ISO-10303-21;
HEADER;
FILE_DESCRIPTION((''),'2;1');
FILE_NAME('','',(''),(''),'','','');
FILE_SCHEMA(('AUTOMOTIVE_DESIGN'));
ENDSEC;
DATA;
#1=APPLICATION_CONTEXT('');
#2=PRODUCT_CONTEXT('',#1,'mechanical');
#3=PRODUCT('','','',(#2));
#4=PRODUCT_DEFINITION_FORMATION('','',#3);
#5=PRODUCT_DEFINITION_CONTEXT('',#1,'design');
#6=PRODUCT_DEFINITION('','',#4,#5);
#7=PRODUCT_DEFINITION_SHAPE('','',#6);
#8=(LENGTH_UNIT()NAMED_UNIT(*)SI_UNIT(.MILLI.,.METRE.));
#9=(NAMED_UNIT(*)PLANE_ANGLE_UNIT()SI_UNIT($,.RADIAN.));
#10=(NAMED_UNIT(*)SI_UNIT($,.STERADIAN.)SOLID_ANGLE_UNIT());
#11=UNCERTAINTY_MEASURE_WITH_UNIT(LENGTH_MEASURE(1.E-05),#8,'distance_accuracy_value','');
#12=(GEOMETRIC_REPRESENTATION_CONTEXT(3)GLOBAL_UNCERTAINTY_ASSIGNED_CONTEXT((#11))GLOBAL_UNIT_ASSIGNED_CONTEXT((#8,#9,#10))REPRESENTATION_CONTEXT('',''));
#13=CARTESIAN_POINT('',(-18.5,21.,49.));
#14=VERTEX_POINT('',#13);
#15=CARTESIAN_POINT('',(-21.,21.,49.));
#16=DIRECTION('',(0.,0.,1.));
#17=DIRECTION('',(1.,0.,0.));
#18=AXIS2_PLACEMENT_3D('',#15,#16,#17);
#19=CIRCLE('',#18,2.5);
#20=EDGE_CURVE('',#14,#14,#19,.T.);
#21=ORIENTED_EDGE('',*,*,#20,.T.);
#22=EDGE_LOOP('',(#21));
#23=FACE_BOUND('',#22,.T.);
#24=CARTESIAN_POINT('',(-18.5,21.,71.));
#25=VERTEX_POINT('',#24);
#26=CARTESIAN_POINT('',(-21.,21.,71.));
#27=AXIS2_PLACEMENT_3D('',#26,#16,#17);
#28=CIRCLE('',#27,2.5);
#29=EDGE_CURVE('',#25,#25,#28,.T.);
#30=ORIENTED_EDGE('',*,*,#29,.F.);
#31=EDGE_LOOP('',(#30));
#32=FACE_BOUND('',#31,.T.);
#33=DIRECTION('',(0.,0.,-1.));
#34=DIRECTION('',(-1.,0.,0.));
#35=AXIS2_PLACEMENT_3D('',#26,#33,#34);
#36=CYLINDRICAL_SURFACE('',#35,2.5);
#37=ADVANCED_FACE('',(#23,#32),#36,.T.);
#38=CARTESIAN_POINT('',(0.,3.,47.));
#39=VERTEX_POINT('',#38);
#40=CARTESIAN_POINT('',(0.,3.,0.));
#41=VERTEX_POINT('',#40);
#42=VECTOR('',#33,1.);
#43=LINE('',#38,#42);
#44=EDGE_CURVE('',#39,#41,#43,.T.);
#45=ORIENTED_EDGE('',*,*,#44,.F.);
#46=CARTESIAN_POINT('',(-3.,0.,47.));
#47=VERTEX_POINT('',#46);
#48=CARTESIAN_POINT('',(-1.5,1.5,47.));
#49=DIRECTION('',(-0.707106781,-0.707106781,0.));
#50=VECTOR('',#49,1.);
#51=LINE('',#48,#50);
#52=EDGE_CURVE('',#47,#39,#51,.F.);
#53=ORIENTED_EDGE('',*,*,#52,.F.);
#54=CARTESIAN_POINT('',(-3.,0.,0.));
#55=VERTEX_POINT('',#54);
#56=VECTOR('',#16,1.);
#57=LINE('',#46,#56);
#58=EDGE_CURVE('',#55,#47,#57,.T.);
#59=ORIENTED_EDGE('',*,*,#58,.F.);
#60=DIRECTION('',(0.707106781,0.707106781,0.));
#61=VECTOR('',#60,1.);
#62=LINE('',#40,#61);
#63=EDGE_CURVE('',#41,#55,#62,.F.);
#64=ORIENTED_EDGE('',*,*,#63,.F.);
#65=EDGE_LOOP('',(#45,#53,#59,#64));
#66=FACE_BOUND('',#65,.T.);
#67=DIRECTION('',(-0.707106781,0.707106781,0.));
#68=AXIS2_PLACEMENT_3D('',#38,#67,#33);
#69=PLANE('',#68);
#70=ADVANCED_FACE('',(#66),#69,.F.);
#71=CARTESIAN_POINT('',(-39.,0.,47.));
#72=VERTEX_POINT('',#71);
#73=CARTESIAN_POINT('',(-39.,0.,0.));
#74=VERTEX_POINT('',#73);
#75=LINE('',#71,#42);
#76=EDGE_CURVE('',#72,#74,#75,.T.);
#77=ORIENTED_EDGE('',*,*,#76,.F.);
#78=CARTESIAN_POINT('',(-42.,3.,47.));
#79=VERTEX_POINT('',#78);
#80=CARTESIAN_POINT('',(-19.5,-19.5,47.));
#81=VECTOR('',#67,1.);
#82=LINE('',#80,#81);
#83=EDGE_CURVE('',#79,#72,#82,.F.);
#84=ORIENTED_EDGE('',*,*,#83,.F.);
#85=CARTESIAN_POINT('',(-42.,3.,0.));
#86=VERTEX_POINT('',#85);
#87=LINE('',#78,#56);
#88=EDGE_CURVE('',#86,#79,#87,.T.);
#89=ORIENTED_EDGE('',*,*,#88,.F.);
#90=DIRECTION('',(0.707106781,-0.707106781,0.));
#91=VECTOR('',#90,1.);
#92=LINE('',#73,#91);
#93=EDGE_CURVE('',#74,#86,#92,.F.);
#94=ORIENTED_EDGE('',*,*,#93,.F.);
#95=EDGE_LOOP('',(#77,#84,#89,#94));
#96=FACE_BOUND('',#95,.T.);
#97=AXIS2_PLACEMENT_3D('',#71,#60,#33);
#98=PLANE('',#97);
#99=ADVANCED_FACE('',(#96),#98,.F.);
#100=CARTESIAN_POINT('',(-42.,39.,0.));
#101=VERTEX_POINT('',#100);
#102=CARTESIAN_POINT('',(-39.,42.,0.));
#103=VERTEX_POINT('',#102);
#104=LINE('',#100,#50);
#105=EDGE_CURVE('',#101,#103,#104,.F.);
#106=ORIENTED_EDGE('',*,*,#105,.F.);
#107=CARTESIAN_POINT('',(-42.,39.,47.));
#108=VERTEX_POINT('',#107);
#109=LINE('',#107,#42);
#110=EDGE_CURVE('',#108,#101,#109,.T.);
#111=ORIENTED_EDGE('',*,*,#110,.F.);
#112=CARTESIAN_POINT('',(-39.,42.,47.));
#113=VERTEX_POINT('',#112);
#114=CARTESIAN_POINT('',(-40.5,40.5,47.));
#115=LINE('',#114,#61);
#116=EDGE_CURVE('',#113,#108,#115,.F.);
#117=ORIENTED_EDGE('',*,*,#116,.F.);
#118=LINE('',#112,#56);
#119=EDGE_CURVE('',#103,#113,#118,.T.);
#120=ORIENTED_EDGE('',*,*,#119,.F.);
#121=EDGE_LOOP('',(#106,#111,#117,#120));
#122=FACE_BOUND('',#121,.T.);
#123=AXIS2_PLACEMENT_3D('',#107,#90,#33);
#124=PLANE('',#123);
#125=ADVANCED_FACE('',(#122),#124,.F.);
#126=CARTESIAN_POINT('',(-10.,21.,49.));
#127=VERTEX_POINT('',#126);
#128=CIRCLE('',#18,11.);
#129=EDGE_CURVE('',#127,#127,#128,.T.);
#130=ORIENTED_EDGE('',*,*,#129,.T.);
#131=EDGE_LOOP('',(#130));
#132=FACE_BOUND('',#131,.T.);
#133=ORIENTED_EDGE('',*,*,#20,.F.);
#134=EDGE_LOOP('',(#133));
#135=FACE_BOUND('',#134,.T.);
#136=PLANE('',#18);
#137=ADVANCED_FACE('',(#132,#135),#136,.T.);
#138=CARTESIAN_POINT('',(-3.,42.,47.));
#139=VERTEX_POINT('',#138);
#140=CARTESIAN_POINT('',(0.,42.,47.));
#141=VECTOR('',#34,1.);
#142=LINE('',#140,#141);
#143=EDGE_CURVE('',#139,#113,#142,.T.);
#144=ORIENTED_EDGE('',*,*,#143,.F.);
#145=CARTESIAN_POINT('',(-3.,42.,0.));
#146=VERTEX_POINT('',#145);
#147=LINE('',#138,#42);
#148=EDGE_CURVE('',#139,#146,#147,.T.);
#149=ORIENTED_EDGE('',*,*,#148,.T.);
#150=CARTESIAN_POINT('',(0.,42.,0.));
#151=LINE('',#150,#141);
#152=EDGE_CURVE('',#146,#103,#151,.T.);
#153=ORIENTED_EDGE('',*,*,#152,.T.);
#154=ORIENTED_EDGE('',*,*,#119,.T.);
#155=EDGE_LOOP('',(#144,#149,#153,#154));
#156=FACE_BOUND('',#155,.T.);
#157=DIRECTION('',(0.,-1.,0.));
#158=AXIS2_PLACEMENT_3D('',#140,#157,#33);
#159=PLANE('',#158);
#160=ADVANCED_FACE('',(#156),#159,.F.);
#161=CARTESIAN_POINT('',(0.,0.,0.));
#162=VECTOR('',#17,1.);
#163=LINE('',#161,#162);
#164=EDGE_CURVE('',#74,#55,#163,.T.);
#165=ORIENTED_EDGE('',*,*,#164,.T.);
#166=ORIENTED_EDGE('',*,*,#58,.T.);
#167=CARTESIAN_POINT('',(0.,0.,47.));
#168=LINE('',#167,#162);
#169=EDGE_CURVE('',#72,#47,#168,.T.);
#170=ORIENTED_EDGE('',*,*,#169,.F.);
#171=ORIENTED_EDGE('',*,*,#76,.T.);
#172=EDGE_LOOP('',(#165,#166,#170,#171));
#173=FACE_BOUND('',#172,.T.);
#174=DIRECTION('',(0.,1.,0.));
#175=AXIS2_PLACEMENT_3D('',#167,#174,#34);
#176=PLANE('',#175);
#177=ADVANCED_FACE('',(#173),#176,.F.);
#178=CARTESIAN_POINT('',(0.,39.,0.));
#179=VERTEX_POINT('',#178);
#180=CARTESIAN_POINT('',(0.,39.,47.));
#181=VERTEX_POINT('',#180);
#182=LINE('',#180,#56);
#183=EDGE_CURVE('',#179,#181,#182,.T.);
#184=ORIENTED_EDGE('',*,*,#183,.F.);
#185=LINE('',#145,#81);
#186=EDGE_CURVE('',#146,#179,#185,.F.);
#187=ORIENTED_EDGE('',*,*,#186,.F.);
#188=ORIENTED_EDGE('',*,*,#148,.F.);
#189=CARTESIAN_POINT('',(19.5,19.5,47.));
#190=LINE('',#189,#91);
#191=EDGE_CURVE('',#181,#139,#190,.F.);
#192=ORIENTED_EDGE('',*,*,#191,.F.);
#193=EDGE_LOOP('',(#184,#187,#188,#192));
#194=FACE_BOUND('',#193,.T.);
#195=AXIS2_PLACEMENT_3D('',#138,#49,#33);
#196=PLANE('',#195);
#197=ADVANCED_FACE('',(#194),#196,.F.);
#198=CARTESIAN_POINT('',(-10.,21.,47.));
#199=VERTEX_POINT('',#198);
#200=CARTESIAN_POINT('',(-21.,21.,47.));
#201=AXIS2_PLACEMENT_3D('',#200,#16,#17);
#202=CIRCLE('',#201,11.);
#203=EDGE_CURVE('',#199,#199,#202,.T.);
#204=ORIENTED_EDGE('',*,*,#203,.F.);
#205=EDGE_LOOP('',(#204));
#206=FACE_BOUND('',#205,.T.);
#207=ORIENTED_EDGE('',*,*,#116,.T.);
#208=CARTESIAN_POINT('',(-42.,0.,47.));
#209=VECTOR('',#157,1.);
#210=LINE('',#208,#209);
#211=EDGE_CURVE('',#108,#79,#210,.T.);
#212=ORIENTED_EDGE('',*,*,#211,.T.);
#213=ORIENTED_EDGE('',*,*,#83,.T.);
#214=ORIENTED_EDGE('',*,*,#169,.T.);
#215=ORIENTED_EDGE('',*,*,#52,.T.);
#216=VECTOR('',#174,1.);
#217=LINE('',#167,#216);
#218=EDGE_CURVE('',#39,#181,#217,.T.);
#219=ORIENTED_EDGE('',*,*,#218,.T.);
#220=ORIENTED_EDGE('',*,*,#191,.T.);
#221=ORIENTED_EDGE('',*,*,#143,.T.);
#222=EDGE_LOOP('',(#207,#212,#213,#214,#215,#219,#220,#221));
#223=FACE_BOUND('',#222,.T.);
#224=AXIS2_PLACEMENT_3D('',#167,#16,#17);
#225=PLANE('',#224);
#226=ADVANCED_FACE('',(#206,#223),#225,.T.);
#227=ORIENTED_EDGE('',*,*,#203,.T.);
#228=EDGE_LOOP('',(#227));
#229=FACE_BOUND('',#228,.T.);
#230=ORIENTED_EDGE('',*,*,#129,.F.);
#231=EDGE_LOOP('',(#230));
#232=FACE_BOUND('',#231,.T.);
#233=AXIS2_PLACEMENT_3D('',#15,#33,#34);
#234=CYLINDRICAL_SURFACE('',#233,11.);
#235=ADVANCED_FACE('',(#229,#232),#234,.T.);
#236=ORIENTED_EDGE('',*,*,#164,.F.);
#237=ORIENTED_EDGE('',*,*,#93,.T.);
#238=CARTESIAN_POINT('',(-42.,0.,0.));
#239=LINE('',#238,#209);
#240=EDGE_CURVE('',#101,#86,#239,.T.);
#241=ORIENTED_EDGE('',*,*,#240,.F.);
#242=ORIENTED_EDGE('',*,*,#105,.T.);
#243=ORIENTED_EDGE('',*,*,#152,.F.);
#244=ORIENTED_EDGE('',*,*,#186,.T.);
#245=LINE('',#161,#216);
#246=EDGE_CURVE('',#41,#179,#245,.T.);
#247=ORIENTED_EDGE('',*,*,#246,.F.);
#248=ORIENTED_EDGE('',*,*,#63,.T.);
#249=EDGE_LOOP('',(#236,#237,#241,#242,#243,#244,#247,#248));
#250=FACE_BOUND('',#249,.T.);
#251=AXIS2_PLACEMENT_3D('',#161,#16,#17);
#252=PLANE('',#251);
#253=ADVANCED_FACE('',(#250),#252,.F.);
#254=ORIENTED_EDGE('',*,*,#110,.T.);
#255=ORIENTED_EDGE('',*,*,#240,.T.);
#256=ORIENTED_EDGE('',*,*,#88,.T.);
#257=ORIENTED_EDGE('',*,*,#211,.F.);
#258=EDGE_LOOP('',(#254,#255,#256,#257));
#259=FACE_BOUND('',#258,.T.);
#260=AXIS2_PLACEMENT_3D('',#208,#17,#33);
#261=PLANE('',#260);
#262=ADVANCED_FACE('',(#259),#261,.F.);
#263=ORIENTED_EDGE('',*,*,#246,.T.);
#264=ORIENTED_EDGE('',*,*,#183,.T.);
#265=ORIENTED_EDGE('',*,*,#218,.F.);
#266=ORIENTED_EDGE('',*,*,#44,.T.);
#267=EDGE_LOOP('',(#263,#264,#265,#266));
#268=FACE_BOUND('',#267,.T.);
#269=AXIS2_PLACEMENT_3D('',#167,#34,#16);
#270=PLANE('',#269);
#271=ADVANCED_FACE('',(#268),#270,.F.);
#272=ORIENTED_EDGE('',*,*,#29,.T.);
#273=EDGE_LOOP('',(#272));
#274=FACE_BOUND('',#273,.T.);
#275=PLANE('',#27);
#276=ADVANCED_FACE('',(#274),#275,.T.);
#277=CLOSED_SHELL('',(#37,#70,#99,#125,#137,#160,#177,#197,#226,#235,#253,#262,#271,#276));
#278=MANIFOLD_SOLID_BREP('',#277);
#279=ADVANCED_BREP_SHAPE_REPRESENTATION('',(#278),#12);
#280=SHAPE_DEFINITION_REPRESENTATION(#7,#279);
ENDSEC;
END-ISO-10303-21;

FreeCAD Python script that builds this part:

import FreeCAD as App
import Part
import Sketcher
from FreeCAD import Vector


def edges_at(feature, points):
    """Names of the edges that pass closest to the given points."""
    edges = feature.Shape.Edges
    near = lambda p: min(range(len(edges)), key=lambda i: edges[i].distToShape(Part.Vertex(*p))[0])
    return sorted({f"Edge{near(p) + 1}" for p in points})

doc = App.newDocument("Part")
body = doc.addObject("PartDesign::Body", "Body")

# Sketch on XY plane
sketch1 = doc.addObject("Sketcher::SketchObject", "Sketch")
body.addObject(sketch1)
sketch1.AttachmentSupport = (doc.XY_Plane, [""])
sketch1.MapMode = "FlatFace"
sketch1.addGeometry([
    Part.LineSegment(Vector(-42, 42, 0), Vector(-42, 0, 0)),
    Part.LineSegment(Vector(-42, 0, 0), Vector(0, 0, 0)),
    Part.LineSegment(Vector(0, 0, 0), Vector(0, 42, 0)),
    Part.LineSegment(Vector(0, 42, 0), Vector(-42, 42, 0)),
], False)
sketch1.addConstraint([
    Sketcher.Constraint("Coincident", 0, 2, 1, 1),
    Sketcher.Constraint("Coincident", 1, 2, 2, 1),
    Sketcher.Constraint("Coincident", 2, 2, 3, 1),
    Sketcher.Constraint("Coincident", 3, 2, 0, 1),
    Sketcher.Constraint("Vertical", 0),
    Sketcher.Constraint("Horizontal", 1),
    Sketcher.Constraint("Vertical", 2),
    Sketcher.Constraint("Horizontal", 3),
    Sketcher.Constraint("Coincident", 1, 2, -1, 1),
    Sketcher.Constraint("Equal", 3, 0),
    Sketcher.Constraint("DistanceX", 1, 1, 1, 2, 42.0),
])
pad1 = doc.addObject("PartDesign::Pad", "Pad")
body.addObject(pad1)
pad1.Profile = sketch1
pad1.Length = 47
doc.recompute()

chamfer = doc.addObject("PartDesign::Chamfer", "Chamfer")
body.addObject(chamfer)
chamfer.Base = (pad1, edges_at(pad1, [
    (0, 0, 23.5),
    (-42, 0, 23.5),
    (-42, 42, 23.5),
    (0, 42, 23.5),
]))
chamfer.Size = 3

# Sketch on XY plane
sketch2 = doc.addObject("Sketcher::SketchObject", "Sketch001")
body.addObject(sketch2)
sketch2.AttachmentSupport = (doc.XY_Plane, [""])
sketch2.MapMode = "FlatFace"
sketch2.AttachmentOffset = App.Placement(Vector(0, 0, 47), App.Rotation())
sketch2.addGeometry(Part.Circle(Vector(-21, 21, 0), Vector(0, 0, 1), 11), False)
sketch2.addConstraint([
    Sketcher.Constraint("Diameter", 0, 22.0),
    Sketcher.Constraint("DistanceX", 0, 3, -1, 1, 21.0),
    Sketcher.Constraint("DistanceY", -1, 1, 0, 3, 21.0),
])
pad2 = doc.addObject("PartDesign::Pad", "Pad001")
body.addObject(pad2)
pad2.Profile = sketch2
pad2.Length = 2

# Sketch on XY plane
sketch3 = doc.addObject("Sketcher::SketchObject", "Sketch002")
body.addObject(sketch3)
sketch3.AttachmentSupport = (doc.XY_Plane, [""])
sketch3.MapMode = "FlatFace"
sketch3.AttachmentOffset = App.Placement(Vector(0, 0, 49), App.Rotation())
sketch3.addGeometry(Part.Circle(Vector(-21, 21, 0), Vector(0, 0, 1), 2.5), False)
sketch3.addConstraint([
    Sketcher.Constraint("Diameter", 0, 5.0),
    Sketcher.Constraint("DistanceX", 0, 3, -1, 1, 21.0),
    Sketcher.Constraint("DistanceY", -1, 1, 0, 3, 21.0),
])
pad3 = doc.addObject("PartDesign::Pad", "Pad002")
body.addObject(pad3)
pad3.Profile = sketch3
pad3.Length = 22

doc.recompute()
